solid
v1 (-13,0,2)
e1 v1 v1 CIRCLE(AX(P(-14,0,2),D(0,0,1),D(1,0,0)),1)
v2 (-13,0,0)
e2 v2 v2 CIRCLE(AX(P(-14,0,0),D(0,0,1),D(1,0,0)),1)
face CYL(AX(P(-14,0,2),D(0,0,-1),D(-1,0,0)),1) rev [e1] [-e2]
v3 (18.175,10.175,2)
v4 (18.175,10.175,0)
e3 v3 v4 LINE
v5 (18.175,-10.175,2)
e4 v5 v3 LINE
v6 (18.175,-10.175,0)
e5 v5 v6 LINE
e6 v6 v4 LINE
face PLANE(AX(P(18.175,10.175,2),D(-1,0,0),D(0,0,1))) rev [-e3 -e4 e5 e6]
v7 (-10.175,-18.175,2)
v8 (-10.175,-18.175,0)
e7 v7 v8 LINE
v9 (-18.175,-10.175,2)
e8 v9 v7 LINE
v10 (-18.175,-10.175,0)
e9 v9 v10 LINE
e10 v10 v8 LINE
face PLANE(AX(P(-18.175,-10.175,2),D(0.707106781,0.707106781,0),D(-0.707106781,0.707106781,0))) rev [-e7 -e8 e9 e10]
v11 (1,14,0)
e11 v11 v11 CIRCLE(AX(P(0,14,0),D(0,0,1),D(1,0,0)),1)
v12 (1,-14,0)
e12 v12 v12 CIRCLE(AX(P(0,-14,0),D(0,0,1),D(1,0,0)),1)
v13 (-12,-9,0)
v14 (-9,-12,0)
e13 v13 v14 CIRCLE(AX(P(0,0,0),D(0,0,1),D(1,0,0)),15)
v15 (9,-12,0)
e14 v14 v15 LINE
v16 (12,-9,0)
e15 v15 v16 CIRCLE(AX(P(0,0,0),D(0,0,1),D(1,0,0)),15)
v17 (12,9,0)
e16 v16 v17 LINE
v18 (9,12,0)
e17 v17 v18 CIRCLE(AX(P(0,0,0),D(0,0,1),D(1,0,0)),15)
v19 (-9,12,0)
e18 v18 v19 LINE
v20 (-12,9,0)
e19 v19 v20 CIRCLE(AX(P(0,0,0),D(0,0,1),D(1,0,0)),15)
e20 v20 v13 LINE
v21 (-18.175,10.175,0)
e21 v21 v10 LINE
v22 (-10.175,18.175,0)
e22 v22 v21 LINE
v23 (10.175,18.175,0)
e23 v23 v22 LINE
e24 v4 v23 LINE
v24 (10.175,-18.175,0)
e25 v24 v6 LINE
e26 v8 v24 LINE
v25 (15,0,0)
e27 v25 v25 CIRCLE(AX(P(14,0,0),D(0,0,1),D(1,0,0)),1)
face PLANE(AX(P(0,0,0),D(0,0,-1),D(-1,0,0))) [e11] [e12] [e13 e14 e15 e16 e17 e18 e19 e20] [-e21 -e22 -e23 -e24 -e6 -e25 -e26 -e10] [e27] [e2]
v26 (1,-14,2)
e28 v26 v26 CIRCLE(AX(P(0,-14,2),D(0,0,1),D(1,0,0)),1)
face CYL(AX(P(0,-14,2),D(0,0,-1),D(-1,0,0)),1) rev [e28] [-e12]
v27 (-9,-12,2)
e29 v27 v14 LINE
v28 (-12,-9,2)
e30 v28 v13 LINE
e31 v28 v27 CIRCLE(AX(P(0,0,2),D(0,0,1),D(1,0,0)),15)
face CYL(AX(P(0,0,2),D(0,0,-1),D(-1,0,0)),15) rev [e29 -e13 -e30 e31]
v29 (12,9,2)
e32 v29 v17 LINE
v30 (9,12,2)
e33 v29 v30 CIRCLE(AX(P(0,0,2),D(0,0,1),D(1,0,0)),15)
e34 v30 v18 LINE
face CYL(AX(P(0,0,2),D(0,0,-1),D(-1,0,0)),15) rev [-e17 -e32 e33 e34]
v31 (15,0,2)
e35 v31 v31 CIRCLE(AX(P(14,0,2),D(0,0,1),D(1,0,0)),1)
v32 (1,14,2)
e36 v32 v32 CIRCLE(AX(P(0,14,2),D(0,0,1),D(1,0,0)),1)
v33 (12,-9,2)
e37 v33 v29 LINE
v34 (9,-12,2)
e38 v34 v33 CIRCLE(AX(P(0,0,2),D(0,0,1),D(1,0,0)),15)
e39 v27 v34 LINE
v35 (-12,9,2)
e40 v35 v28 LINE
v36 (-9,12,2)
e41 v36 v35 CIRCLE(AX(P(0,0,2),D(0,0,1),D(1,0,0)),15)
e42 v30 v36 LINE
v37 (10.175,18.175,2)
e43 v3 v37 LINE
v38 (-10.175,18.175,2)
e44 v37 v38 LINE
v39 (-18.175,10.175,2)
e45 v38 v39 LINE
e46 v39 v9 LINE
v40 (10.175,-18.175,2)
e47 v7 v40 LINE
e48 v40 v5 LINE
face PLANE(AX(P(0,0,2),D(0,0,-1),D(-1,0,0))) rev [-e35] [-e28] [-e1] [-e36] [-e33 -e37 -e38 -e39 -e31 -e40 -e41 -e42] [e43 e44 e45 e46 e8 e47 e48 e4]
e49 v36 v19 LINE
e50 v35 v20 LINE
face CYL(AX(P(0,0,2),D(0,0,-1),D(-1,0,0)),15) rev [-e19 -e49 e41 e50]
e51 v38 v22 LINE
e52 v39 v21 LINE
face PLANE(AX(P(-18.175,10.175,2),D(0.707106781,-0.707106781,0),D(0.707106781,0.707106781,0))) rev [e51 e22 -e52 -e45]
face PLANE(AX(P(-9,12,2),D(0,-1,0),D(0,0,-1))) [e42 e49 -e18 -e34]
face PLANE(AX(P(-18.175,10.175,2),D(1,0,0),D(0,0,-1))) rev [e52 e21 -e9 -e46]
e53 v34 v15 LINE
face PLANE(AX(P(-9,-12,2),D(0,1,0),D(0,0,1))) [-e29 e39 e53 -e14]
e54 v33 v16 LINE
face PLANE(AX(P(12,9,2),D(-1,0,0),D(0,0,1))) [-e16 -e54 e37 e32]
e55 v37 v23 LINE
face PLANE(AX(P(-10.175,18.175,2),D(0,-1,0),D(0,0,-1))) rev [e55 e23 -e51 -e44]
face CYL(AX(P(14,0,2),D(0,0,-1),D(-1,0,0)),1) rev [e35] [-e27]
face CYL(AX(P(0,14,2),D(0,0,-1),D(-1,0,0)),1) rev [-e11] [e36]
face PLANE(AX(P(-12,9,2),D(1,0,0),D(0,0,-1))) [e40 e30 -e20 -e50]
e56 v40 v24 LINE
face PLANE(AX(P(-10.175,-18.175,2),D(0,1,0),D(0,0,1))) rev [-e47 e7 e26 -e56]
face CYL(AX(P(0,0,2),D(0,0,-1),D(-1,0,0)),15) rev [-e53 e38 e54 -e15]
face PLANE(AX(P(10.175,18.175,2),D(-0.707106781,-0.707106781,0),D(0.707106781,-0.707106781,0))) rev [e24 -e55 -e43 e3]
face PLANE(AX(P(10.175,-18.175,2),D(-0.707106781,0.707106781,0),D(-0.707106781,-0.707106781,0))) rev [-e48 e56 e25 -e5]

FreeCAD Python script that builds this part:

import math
import FreeCAD as App
import Part
import Sketcher

V = App.Vector
Q = App.Units.Quantity

doc = App.newDocument("Part")
params = doc.addObject("Spreadsheet::Sheet", "Params")
for row, (alias, value) in enumerate([
    ("sketch1_diameter", "2 mm"),
    ("sketch1_radius", "15 mm"),
    ("sketch1_width", "18 mm"),
    ("sketch1_width2", "20.35 mm"),
    ("pad1_length", "2 mm"),
], start=1):
    params.set(f"A{row}", alias)
    params.set(f"B{row}", "=" + value)
    params.setAlias(f"B{row}", alias)

body = doc.addObject("PartDesign::Body", "Body")

# Sketch on XY plane
sketch1 = body.newObject("Sketcher::SketchObject", "Sketch")
sketch1.AttachmentSupport = (doc.getObject("XY_Plane"), [""])
sketch1.MapMode = "FlatFace"
sketch1.addGeometry([
    Part.LineSegment(V(-10.175, 18.175, 0), V(-18.175, 10.175, 0)),  # 0
    Part.LineSegment(V(-18.175, 10.175, 0), V(-18.175, -10.175, 0)),  # 1
    Part.LineSegment(V(-18.175, -10.175, 0), V(-10.175, -18.175, 0)),  # 2
    Part.LineSegment(V(-10.175, -18.175, 0), V(10.175, -18.175, 0)),  # 3
    Part.LineSegment(V(10.175, -18.175, 0), V(18.175, -10.175, 0)),  # 4
    Part.LineSegment(V(18.175, -10.175, 0), V(18.175, 10.175, 0)),  # 5
    Part.LineSegment(V(18.175, 10.175, 0), V(10.175, 18.175, 0)),  # 6
    Part.LineSegment(V(10.175, 18.175, 0), V(-10.175, 18.175, 0)),  # 7
    Part.Circle(V(0, -14, 0), V(0, 0, 1), 1),  # 8
    Part.Circle(V(14, 0, 0), V(0, 0, 1), 1),  # 9
    Part.LineSegment(V(-9, 12, 0), V(9, 12, 0)),  # 10
    Part.ArcOfCircle(Part.Circle(V(0, 0, 0), V(0, 0, 1), 15), math.radians(36.869898), math.radians(53.130102)),  # 11
    Part.LineSegment(V(12, 9, 0), V(12, -9, 0)),  # 12
    Part.ArcOfCircle(Part.Circle(V(0, 0, 0), V(0, 0, 1), 15), math.radians(-53.130102), math.radians(-36.869898)),  # 13
    Part.LineSegment(V(9, -12, 0), V(-9, -12, 0)),  # 14
    Part.ArcOfCircle(Part.Circle(V(0, 0, 0), V(0, 0, 1), 15), math.radians(-143.130102), math.radians(-126.869898)),  # 15
    Part.LineSegment(V(-12, -9, 0), V(-12, 9, 0)),  # 16
    Part.ArcOfCircle(Part.Circle(V(0, 0, 0), V(0, 0, 1), 15), math.radians(126.869898), math.radians(143.130102)),  # 17
    Part.Circle(V(-14, 0, 0), V(0, 0, 1), 1),  # 18
    Part.Circle(V(0, 14, 0), V(0, 0, 1), 1),  # 19
], False)
sketch1.addConstraint([
    Sketcher.Constraint("Coincident", 0, 2, 1, 1),
    Sketcher.Constraint("Coincident", 1, 2, 2, 1),
    Sketcher.Constraint("Coincident", 2, 2, 3, 1),
    Sketcher.Constraint("Coincident", 3, 2, 4, 1),
    Sketcher.Constraint("Coincident", 4, 2, 5, 1),
    Sketcher.Constraint("Coincident", 5, 2, 6, 1),
    Sketcher.Constraint("Coincident", 6, 2, 7, 1),
    Sketcher.Constraint("Coincident", 7, 2, 0, 1),
    Sketcher.Constraint("Coincident", 10, 2, 11, 2),
    Sketcher.Constraint("Coincident", 11, 1, 12, 1),
    Sketcher.Constraint("Coincident", 12, 2, 13, 2),
    Sketcher.Constraint("Coincident", 13, 1, 14, 1),
    Sketcher.Constraint("Coincident", 14, 2, 15, 2),
    Sketcher.Constraint("Coincident", 15, 1, 16, 1),
    Sketcher.Constraint("Coincident", 16, 2, 17, 2),
    Sketcher.Constraint("Coincident", 17, 1, 10, 1),
    Sketcher.Constraint("Vertical", 1),
    Sketcher.Constraint("Horizontal", 3),
    Sketcher.Constraint("Vertical", 5),
    Sketcher.Constraint("Horizontal", 7),
    Sketcher.Constraint("Horizontal", 10),
    Sketcher.Constraint("Vertical", 12),
    Sketcher.Constraint("Horizontal", 14),
    Sketcher.Constraint("Vertical", 16),
    Sketcher.Constraint("Coincident", 11, 3, -1, 1),
    Sketcher.Constraint("Coincident", 13, 3, -1, 1),
    Sketcher.Constraint("Coincident", 15, 3, -1, 1),
    Sketcher.Constraint("Coincident", 17, 3, -1, 1),
    Sketcher.Constraint("Equal", 8, 9),
    Sketcher.Constraint("Equal", 11, 13),
    Sketcher.Constraint("Equal", 13, 15),
    Sketcher.Constraint("Equal", 15, 17),
    Sketcher.Constraint("Equal", 9, 18),
    Sketcher.Constraint("Equal", 18, 19),
    Sketcher.Constraint("Symmetric", 9, 3, 18, 3, -1, 1),
    Sketcher.Constraint("Symmetric", 8, 3, 19, 3, -1, 1),
    Sketcher.Constraint("Symmetric", 0, 2, 4, 2, -1, 1),
    Sketcher.Constraint("Symmetric", 2, 2, 6, 2, -1, 1),
    Sketcher.Constraint("PointOnObject", 8, 3, -2),
    Sketcher.Constraint("PointOnObject", 9, 3, -1),
    Sketcher.Constraint("Perpendicular", 0, 2),
    Sketcher.Constraint("Perpendicular", 2, 4),
    Sketcher.Constraint("Perpendicular", 4, 6),
    Sketcher.Constraint("Horizontal", 1, 2, 4, 2),
    Sketcher.Constraint("Horizontal", 12, 2, 15, 1),
    Sketcher.Constraint("Vertical", 3, 2, 6, 2),
    Sketcher.Constraint("Vertical", 10, 2, 13, 1),
    Sketcher.Constraint("Equal", 7, 1),
    Sketcher.Constraint("Equal", 14, 12),
    Sketcher.Constraint("Diameter", 8, Q("2 mm")),
    Sketcher.Constraint("Radius", 11, Q("15 mm")),
    Sketcher.Constraint("DistanceX", 10, 1, 10, 2, Q("18 mm")),
    Sketcher.Constraint("DistanceY", 8, 3, -1, 1, Q("14 mm")),
    Sketcher.Constraint("DistanceX", -1, 1, 9, 3, Q("14 mm")),
    Sketcher.Constraint("DistanceX", 1, 2, 2, 2, Q("8 mm")),
    Sketcher.Constraint("DistanceX", 3, 1, 3, 2, Q("20.35 mm")),
])
sketch1.setExpression("Constraints[49]", "Params.sketch1_diameter")
sketch1.setExpression("Constraints[50]", "Params.sketch1_radius")
sketch1.setExpression("Constraints[51]", "Params.sketch1_width")
sketch1.setExpression("Constraints[55]", "Params.sketch1_width2")
pad1 = body.newObject("PartDesign::Pad", "Pad")
pad1.Profile = sketch1
pad1.setExpression("Length", "Params.pad1_length")

doc.recompute()
